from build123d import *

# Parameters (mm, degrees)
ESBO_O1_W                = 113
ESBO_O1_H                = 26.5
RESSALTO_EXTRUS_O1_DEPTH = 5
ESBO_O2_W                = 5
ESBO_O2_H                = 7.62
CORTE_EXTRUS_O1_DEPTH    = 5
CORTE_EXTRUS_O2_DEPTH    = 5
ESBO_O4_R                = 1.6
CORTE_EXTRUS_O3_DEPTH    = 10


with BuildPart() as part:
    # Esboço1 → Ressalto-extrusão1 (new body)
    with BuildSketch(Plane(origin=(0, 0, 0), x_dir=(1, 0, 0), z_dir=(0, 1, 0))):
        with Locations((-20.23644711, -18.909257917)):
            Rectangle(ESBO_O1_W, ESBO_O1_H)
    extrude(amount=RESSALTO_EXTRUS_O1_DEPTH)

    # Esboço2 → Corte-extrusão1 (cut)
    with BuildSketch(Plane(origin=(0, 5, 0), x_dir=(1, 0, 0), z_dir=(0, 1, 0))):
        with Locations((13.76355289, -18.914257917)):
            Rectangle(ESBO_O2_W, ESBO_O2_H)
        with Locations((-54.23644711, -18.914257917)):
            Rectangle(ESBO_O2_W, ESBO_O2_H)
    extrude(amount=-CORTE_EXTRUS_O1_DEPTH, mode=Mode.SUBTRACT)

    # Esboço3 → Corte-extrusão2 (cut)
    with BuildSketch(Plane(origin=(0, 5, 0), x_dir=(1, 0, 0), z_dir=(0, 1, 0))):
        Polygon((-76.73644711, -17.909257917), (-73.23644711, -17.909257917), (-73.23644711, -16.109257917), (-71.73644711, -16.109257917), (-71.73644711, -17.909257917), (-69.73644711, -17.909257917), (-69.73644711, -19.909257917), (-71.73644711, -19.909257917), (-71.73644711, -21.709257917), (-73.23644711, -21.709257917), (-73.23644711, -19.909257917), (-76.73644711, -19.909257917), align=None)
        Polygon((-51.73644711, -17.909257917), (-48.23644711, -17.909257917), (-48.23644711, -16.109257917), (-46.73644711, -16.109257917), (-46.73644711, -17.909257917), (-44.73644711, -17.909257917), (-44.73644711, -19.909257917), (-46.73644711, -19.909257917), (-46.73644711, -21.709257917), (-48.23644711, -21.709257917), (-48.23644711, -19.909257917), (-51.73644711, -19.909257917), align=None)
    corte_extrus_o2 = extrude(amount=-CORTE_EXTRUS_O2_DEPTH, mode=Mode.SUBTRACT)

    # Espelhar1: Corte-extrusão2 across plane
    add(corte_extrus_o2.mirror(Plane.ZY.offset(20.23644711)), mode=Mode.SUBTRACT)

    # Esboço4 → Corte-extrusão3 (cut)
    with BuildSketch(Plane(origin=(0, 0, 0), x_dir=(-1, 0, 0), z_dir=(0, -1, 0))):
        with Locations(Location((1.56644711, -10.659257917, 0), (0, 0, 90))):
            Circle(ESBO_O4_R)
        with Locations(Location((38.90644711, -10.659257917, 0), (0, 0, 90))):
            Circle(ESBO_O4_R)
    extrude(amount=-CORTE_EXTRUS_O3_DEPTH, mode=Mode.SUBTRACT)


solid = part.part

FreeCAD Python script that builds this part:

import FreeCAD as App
import Part
import Sketcher
Q = App.Units.Quantity

doc = App.newDocument("Part")
body = doc.addObject("PartDesign::Body", "Body")

# Sketch on XZ plane
sketch1 = body.newObject("Sketcher::SketchObject", "Sketch")
sketch1.AttachmentSupport = (doc.getObject("XZ_Plane"), [""])
sketch1.MapMode = "FlatFace"
sketch1.addGeometry(Part.LineSegment(App.Vector(-77, 6, 0), App.Vector(-77, 32, 0)), False)
sketch1.addGeometry(Part.LineSegment(App.Vector(-77, 32, 0), App.Vector(36, 32, 0)), False)
sketch1.addGeometry(Part.LineSegment(App.Vector(36, 32, 0), App.Vector(36, 6, 0)), False)
sketch1.addGeometry(Part.LineSegment(App.Vector(36, 6, 0), App.Vector(-77, 6, 0)), False)
sketch1.addConstraint(Sketcher.Constraint("Coincident", 0, 2, 1, 1))
sketch1.addConstraint(Sketcher.Constraint("Coincident", 1, 2, 2, 1))
sketch1.addConstraint(Sketcher.Constraint("Coincident", 2, 2, 3, 1))
sketch1.addConstraint(Sketcher.Constraint("Coincident", 3, 2, 0, 1))
sketch1.addConstraint(Sketcher.Constraint("Vertical", 0))
sketch1.addConstraint(Sketcher.Constraint("Horizontal", 1))
sketch1.addConstraint(Sketcher.Constraint("Vertical", 2))
sketch1.addConstraint(Sketcher.Constraint("Horizontal", 3))
sketch1.addConstraint(Sketcher.Constraint("DistanceX", 1, 1, 1, 2, Q("113 mm")))
sketch1.addConstraint(Sketcher.Constraint("DistanceY", 0, 1, 0, 2, Q("26.5 mm")))
sketch1.addConstraint(Sketcher.Constraint("DistanceX", 0, 2, -1, 1, Q("76.736447 mm")))
sketch1.addConstraint(Sketcher.Constraint("DistanceY", -1, 1, 0, 2, Q("32.159258 mm")))
pad1 = body.newObject("PartDesign::Pad", "Pad")
pad1.Profile = sketch1
pad1.Length = 5
pad1.Reversed = True

# Sketch on XZ plane
sketch2 = body.newObject("Sketcher::SketchObject", "Sketch001")
sketch2.AttachmentSupport = (doc.getObject("XZ_Plane"), [""])
sketch2.MapMode = "FlatFace"
sketch2.AttachmentOffset = App.Placement(App.Vector(0, 0, -5), App.Rotation())
sketch2.addGeometry(Part.LineSegment(App.Vector(11, 15, 0), App.Vector(11, 23, 0)), False)
sketch2.addGeometry(Part.LineSegment(App.Vector(11, 23, 0), App.Vector(16, 23, 0)), False)
sketch2.addGeometry(Part.LineSegment(App.Vector(16, 23, 0), App.Vector(16, 15, 0)), False)
sketch2.addGeometry(Part.LineSegment(App.Vector(16, 15, 0), App.Vector(11, 15, 0)), False)
sketch2.addGeometry(Part.LineSegment(App.Vector(-57, 15, 0), App.Vector(-57, 23, 0)), False)
sketch2.addGeometry(Part.LineSegment(App.Vector(-57, 23, 0), App.Vector(-52, 23, 0)), False)
sketch2.addGeometry(Part.LineSegment(App.Vector(-52, 23, 0), App.Vector(-52, 15, 0)), False)
sketch2.addGeometry(Part.LineSegment(App.Vector(-52, 15, 0), App.Vector(-57, 15, 0)), False)
sketch2.addConstraint(Sketcher.Constraint("Coincident", 0, 2, 1, 1))
sketch2.addConstraint(Sketcher.Constraint("Coincident", 1, 2, 2, 1))
sketch2.addConstraint(Sketcher.Constraint("Coincident", 2, 2, 3, 1))
sketch2.addConstraint(Sketcher.Constraint("Coincident", 3, 2, 0, 1))
sketch2.addConstraint(Sketcher.Constraint("Coincident", 4, 2, 5, 1))
sketch2.addConstraint(Sketcher.Constraint("Coincident", 5, 2, 6, 1))
sketch2.addConstraint(Sketcher.Constraint("Coincident", 6, 2, 7, 1))
sketch2.addConstraint(Sketcher.Constraint("Coincident", 7, 2, 4, 1))
sketch2.addConstraint(Sketcher.Constraint("Vertical", 0))
sketch2.addConstraint(Sketcher.Constraint("Horizontal", 1))
sketch2.addConstraint(Sketcher.Constraint("Vertical", 2))
sketch2.addConstraint(Sketcher.Constraint("Horizontal", 3))
sketch2.addConstraint(Sketcher.Constraint("Vertical", 4))
sketch2.addConstraint(Sketcher.Constraint("Horizontal", 5))
sketch2.addConstraint(Sketcher.Constraint("Vertical", 6))
sketch2.addConstraint(Sketcher.Constraint("Horizontal", 7))
sketch2.addConstraint(Sketcher.Constraint("Horizontal", 1, 2, 4, 2))
sketch2.addConstraint(Sketcher.Constraint("Horizontal", 3, 2, 6, 2))
sketch2.addConstraint(Sketcher.Constraint("Equal", 3, 5))
sketch2.addConstraint(Sketcher.Constraint("DistanceX", 1, 1, 1, 2, Q("5 mm")))
sketch2.addConstraint(Sketcher.Constraint("DistanceX", 4, 2, 0, 2, Q("68 mm")))
sketch2.addConstraint(Sketcher.Constraint("DistanceY", 0, 1, 0, 2, Q("7.62 mm")))
sketch2.addConstraint(Sketcher.Constraint("DistanceX", -1, 1, 0, 2, Q("11.263553 mm")))
sketch2.addConstraint(Sketcher.Constraint("DistanceY", -1, 1, 0, 2, Q("22.724258 mm")))
pocket1 = body.newObject("PartDesign::Pocket", "Pocket")
pocket1.Profile = sketch2
pocket1.Length = 5
pocket1.Reversed = True

# Sketch on XZ plane
sketch3 = body.newObject("Sketcher::SketchObject", "Sketch002")
sketch3.AttachmentSupport = (doc.getObject("XZ_Plane"), [""])
sketch3.MapMode = "FlatFace"
sketch3.AttachmentOffset = App.Placement(App.Vector(0, 0, -5), App.Rotation())
sketch3.addGeometry(Part.LineSegment(App.Vector(-73.2, 17.9, 0), App.Vector(-76.7, 17.9, 0)), False)
sketch3.addGeometry(Part.LineSegment(App.Vector(-76.7, 17.9, 0), App.Vector(-76.7, 19.9, 0)), False)
sketch3.addGeometry(Part.LineSegment(App.Vector(-76.7, 19.9, 0), App.Vector(-73.2, 19.9, 0)), False)
sketch3.addGeometry(Part.LineSegment(App.Vector(-73.2, 19.9, 0), App.Vector(-73.2, 21.7, 0)), False)
sketch3.addGeometry(Part.LineSegment(App.Vector(-73.2, 21.7, 0), App.Vector(-71.7, 21.7, 0)), False)
sketch3.addGeometry(Part.LineSegment(App.Vector(-71.7, 21.7, 0), App.Vector(-71.7, 19.9, 0)), False)
sketch3.addGeometry(Part.LineSegment(App.Vector(-71.7, 19.9, 0), App.Vector(-69.7, 19.9, 0)), False)
sketch3.addGeometry(Part.LineSegment(App.Vector(-69.7, 19.9, 0), App.Vector(-69.7, 17.9, 0)), False)
sketch3.addGeometry(Part.LineSegment(App.Vector(-69.7, 17.9, 0), App.Vector(-71.7, 17.9, 0)), False)
sketch3.addGeometry(Part.LineSegment(App.Vector(-71.7, 17.9, 0), App.Vector(-71.7, 16.1, 0)), False)
sketch3.addGeometry(Part.LineSegment(App.Vector(-71.7, 16.1, 0), App.Vector(-73.2, 16.1, 0)), False)
sketch3.addGeometry(Part.LineSegment(App.Vector(-73.2, 16.1, 0), App.Vector(-73.2, 17.9, 0)), False)
sketch3.addGeometry(Part.LineSegment(App.Vector(-48.2, 17.9, 0), App.Vector(-51.7, 17.9, 0)), False)
sketch3.addGeometry(Part.LineSegment(App.Vector(-51.7, 17.9, 0), App.Vector(-51.7, 19.9, 0)), False)
sketch3.addGeometry(Part.LineSegment(App.Vector(-51.7, 19.9, 0), App.Vector(-48.2, 19.9, 0)), False)
sketch3.addGeometry(Part.LineSegment(App.Vector(-48.2, 19.9, 0), App.Vector(-48.2, 21.7, 0)), False)
sketch3.addGeometry(Part.LineSegment(App.Vector(-48.2, 21.7, 0), App.Vector(-46.7, 21.7, 0)), False)
sketch3.addGeometry(Part.LineSegment(App.Vector(-46.7, 21.7, 0), App.Vector(-46.7, 19.9, 0)), False)
sketch3.addGeometry(Part.LineSegment(App.Vector(-46.7, 19.9, 0), App.Vector(-44.7, 19.9, 0)), False)
sketch3.addGeometry(Part.LineSegment(App.Vector(-44.7, 19.9, 0), App.Vector(-44.7, 17.9, 0)), False)
sketch3.addGeometry(Part.LineSegment(App.Vector(-44.7, 17.9, 0), App.Vector(-46.7, 17.9, 0)), False)
sketch3.addGeometry(Part.LineSegment(App.Vector(-46.7, 17.9, 0), App.Vector(-46.7, 16.1, 0)), False)
sketch3.addGeometry(Part.LineSegment(App.Vector(-46.7, 16.1, 0), App.Vector(-48.2, 16.1, 0)), False)
sketch3.addGeometry(Part.LineSegment(App.Vector(-48.2, 16.1, 0), App.Vector(-48.2, 17.9, 0)), False)
sketch3.addConstraint(Sketcher.Constraint("Coincident", 0, 2, 1, 1))
sketch3.addConstraint(Sketcher.Constraint("Coincident", 1, 2, 2, 1))
sketch3.addConstraint(Sketcher.Constraint("Coincident", 2, 2, 3, 1))
sketch3.addConstraint(Sketcher.Constraint("Coincident", 3, 2, 4, 1))
sketch3.addConstraint(Sketcher.Constraint("Coincident", 4, 2, 5, 1))
sketch3.addConstraint(Sketcher.Constraint("Coincident", 5, 2, 6, 1))
sketch3.addConstraint(Sketcher.Constraint("Coincident", 6, 2, 7, 1))
sketch3.addConstraint(Sketcher.Constraint("Coincident", 7, 2, 8, 1))
sketch3.addConstraint(Sketcher.Constraint("Coincident", 8, 2, 9, 1))
sketch3.addConstraint(Sketcher.Constraint("Coincident", 9, 2, 10, 1))
sketch3.addConstraint(Sketcher.Constraint("Coincident", 10, 2, 11, 1))
sketch3.addConstraint(Sketcher.Constraint("Coincident", 11, 2, 0, 1))
sketch3.addConstraint(Sketcher.Constraint("Coincident", 12, 2, 13, 1))
sketch3.addConstraint(Sketcher.Constraint("Coincident", 13, 2, 14, 1))
sketch3.addConstraint(Sketcher.Constraint("Coincident", 14, 2, 15, 1))
sketch3.addConstraint(Sketcher.Constraint("Coincident", 15, 2, 16, 1))
sketch3.addConstraint(Sketcher.Constraint("Coincident", 16, 2, 17, 1))
sketch3.addConstraint(Sketcher.Constraint("Coincident", 17, 2, 18, 1))
sketch3.addConstraint(Sketcher.Constraint("Coincident", 18, 2, 19, 1))
sketch3.addConstraint(Sketcher.Constraint("Coincident", 19, 2, 20, 1))
sketch3.addConstraint(Sketcher.Constraint("Coincident", 20, 2, 21, 1))
sketch3.addConstraint(Sketcher.Constraint("Coincident", 21, 2, 22, 1))
sketch3.addConstraint(Sketcher.Constraint("Coincident", 22, 2, 23, 1))
sketch3.addConstraint(Sketcher.Constraint("Coincident", 23, 2, 12, 1))
sketch3.addConstraint(Sketcher.Constraint("Horizontal", 0))
sketch3.addConstraint(Sketcher.Constraint("Vertical", 1))
sketch3.addConstraint(Sketcher.Constraint("Horizontal", 2))
sketch3.addConstraint(Sketcher.Constraint("Vertical", 3))
sketch3.addConstraint(Sketcher.Constraint("Horizontal", 4))
sketch3.addConstraint(Sketcher.Constraint("Vertical", 5))
sketch3.addConstraint(Sketcher.Constraint("Horizontal", 6))
sketch3.addConstraint(Sketcher.Constraint("Vertical", 7))
sketch3.addConstraint(Sketcher.Constraint("Horizontal", 8))
sketch3.addConstraint(Sketcher.Constraint("Vertical", 9))
sketch3.addConstraint(Sketcher.Constraint("Horizontal", 10))
sketch3.addConstraint(Sketcher.Constraint("Vertical", 11))
sketch3.addConstraint(Sketcher.Constraint("Horizontal", 12))
sketch3.addConstraint(Sketcher.Constraint("Vertical", 13))
sketch3.addConstraint(Sketcher.Constraint("Horizontal", 14))
sketch3.addConstraint(Sketcher.Constraint("Vertical", 15))
sketch3.addConstraint(Sketcher.Constraint("Horizontal", 16))
sketch3.addConstraint(Sketcher.Constraint("Vertical", 17))
sketch3.addConstraint(Sketcher.Constraint("Horizontal", 18))
sketch3.addConstraint(Sketcher.Constraint("Vertical", 19))
sketch3.addConstraint(Sketcher.Constraint("Horizontal", 20))
sketch3.addConstraint(Sketcher.Constraint("Vertical", 21))
sketch3.addConstraint(Sketcher.Constraint("Horizontal", 22))
sketch3.addConstraint(Sketcher.Constraint("Vertical", 23))
sketch3.addConstraint(Sketcher.Constraint("Horizontal", 2, 2, 5, 2))
sketch3.addConstraint(Sketcher.Constraint("Horizontal", 0, 2, 7, 2))
sketch3.addConstraint(Sketcher.Constraint("Horizontal", 11, 2, 12, 2))
sketch3.addConstraint(Sketcher.Constraint("Horizontal", 6, 2, 13, 2))
sketch3.addConstraint(Sketcher.Constraint("Horizontal", 4, 2, 15, 2))
sketch3.addConstraint(Sketcher.Constraint("Horizontal", 14, 2, 17, 2))
sketch3.addConstraint(Sketcher.Constraint("Horizontal", 12, 2, 19, 2))
sketch3.addConstraint(Sketcher.Constraint("Horizontal", 10, 2, 21, 2))
sketch3.addConstraint(Sketcher.Constraint("Vertical", 5, 2, 8, 2))
sketch3.addConstraint(Sketcher.Constraint("Vertical", 3, 2, 10, 2))
sketch3.addConstraint(Sketcher.Constraint("Vertical", 17, 2, 20, 2))
sketch3.addConstraint(Sketcher.Constraint("Vertical", 15, 2, 22, 2))
sketch3.addConstraint(Sketcher.Constraint("Equal", 2, 12))
sketch3.addConstraint(Sketcher.Constraint("Equal", 10, 16))
sketch3.addConstraint(Sketcher.Constraint("Equal", 8, 18))
sketch3.addConstraint(Sketcher.Constraint("Equal", 20, 1))
sketch3.addConstraint(Sketcher.Constraint("Equal", 5, 9))
sketch3.addConstraint(Sketcher.Constraint("DistanceX", 6, 1, 6, 2, Q("2 mm")))
sketch3.addConstraint(Sketcher.Constraint("DistanceX", 0, 2, 0, 1, Q("3.5 mm")))
sketch3.addConstraint(Sketcher.Constraint("DistanceX", 4, 1, 4, 2, Q("1.5 mm")))
sketch3.addConstraint(Sketcher.Constraint("DistanceY", 3, 1, 3, 2, Q("1.8 mm")))
sketch3.addConstraint(Sketcher.Constraint("DistanceX", 7, 2, 12, 2, Q("18 mm")))
sketch3.addConstraint(Sketcher.Constraint("DistanceX", 0, 2, -1, 1, Q("76.736447 mm")))
sketch3.addConstraint(Sketcher.Constraint("DistanceY", -1, 1, 0, 2, Q("17.909258 mm")))
pocket2 = body.newObject("PartDesign::Pocket", "Pocket001")
pocket2.Profile = sketch3
pocket2.Length = 5
pocket2.Reversed = True
doc.recompute()

datumplane = body.newObject("PartDesign::Plane", "DatumPlane")
datumplane.AttachmentSupport = (doc.getObject("YZ_Plane"), [""])
datumplane.MapMode = "FlatFace"
datumplane.AttachmentOffset = App.Placement(App.Vector(0, 0, -20.236447), App.Rotation())
mirrored = body.newObject("PartDesign::Mirrored", "Mirrored")
mirrored.Originals = [pocket2]
mirrored.MirrorPlane = (datumplane, [""])
body.Tip = mirrored

# Sketch on XZ plane
sketch4 = body.newObject("Sketcher::SketchObject", "Sketch003")
sketch4.AttachmentSupport = (doc.getObject("XZ_Plane"), [""])
sketch4.MapMode = "FlatFace"
sketch4.addGeometry(Part.Circle(App.Vector(-1.6, 10.7, 0), App.Vector(0, 0, 1), 1.6), False)
sketch4.addGeometry(Part.Circle(App.Vector(-38.9, 10.7, 0), App.Vector(0, 0, 1), 1.6), False)
sketch4.addConstraint(Sketcher.Constraint("Equal", 0, 1))
sketch4.addConstraint(Sketcher.Constraint("Horizontal", 0, 3, 1, 3))
sketch4.addConstraint(Sketcher.Constraint("Diameter", 0, Q("3.2 mm")))
sketch4.addConstraint(Sketcher.Constraint("DistanceX", 1, 3, 0, 3, Q("37.34 mm")))
sketch4.addConstraint(Sketcher.Constraint("DistanceX", 0, 3, -1, 1, Q("1.566447 mm")))
sketch4.addConstraint(Sketcher.Constraint("DistanceY", -1, 1, 0, 3, Q("10.659258 mm")))
pocket3 = body.newObject("PartDesign::Pocket", "Pocket002")
pocket3.Profile = sketch4
pocket3.Length = 10

doc.recompute()
